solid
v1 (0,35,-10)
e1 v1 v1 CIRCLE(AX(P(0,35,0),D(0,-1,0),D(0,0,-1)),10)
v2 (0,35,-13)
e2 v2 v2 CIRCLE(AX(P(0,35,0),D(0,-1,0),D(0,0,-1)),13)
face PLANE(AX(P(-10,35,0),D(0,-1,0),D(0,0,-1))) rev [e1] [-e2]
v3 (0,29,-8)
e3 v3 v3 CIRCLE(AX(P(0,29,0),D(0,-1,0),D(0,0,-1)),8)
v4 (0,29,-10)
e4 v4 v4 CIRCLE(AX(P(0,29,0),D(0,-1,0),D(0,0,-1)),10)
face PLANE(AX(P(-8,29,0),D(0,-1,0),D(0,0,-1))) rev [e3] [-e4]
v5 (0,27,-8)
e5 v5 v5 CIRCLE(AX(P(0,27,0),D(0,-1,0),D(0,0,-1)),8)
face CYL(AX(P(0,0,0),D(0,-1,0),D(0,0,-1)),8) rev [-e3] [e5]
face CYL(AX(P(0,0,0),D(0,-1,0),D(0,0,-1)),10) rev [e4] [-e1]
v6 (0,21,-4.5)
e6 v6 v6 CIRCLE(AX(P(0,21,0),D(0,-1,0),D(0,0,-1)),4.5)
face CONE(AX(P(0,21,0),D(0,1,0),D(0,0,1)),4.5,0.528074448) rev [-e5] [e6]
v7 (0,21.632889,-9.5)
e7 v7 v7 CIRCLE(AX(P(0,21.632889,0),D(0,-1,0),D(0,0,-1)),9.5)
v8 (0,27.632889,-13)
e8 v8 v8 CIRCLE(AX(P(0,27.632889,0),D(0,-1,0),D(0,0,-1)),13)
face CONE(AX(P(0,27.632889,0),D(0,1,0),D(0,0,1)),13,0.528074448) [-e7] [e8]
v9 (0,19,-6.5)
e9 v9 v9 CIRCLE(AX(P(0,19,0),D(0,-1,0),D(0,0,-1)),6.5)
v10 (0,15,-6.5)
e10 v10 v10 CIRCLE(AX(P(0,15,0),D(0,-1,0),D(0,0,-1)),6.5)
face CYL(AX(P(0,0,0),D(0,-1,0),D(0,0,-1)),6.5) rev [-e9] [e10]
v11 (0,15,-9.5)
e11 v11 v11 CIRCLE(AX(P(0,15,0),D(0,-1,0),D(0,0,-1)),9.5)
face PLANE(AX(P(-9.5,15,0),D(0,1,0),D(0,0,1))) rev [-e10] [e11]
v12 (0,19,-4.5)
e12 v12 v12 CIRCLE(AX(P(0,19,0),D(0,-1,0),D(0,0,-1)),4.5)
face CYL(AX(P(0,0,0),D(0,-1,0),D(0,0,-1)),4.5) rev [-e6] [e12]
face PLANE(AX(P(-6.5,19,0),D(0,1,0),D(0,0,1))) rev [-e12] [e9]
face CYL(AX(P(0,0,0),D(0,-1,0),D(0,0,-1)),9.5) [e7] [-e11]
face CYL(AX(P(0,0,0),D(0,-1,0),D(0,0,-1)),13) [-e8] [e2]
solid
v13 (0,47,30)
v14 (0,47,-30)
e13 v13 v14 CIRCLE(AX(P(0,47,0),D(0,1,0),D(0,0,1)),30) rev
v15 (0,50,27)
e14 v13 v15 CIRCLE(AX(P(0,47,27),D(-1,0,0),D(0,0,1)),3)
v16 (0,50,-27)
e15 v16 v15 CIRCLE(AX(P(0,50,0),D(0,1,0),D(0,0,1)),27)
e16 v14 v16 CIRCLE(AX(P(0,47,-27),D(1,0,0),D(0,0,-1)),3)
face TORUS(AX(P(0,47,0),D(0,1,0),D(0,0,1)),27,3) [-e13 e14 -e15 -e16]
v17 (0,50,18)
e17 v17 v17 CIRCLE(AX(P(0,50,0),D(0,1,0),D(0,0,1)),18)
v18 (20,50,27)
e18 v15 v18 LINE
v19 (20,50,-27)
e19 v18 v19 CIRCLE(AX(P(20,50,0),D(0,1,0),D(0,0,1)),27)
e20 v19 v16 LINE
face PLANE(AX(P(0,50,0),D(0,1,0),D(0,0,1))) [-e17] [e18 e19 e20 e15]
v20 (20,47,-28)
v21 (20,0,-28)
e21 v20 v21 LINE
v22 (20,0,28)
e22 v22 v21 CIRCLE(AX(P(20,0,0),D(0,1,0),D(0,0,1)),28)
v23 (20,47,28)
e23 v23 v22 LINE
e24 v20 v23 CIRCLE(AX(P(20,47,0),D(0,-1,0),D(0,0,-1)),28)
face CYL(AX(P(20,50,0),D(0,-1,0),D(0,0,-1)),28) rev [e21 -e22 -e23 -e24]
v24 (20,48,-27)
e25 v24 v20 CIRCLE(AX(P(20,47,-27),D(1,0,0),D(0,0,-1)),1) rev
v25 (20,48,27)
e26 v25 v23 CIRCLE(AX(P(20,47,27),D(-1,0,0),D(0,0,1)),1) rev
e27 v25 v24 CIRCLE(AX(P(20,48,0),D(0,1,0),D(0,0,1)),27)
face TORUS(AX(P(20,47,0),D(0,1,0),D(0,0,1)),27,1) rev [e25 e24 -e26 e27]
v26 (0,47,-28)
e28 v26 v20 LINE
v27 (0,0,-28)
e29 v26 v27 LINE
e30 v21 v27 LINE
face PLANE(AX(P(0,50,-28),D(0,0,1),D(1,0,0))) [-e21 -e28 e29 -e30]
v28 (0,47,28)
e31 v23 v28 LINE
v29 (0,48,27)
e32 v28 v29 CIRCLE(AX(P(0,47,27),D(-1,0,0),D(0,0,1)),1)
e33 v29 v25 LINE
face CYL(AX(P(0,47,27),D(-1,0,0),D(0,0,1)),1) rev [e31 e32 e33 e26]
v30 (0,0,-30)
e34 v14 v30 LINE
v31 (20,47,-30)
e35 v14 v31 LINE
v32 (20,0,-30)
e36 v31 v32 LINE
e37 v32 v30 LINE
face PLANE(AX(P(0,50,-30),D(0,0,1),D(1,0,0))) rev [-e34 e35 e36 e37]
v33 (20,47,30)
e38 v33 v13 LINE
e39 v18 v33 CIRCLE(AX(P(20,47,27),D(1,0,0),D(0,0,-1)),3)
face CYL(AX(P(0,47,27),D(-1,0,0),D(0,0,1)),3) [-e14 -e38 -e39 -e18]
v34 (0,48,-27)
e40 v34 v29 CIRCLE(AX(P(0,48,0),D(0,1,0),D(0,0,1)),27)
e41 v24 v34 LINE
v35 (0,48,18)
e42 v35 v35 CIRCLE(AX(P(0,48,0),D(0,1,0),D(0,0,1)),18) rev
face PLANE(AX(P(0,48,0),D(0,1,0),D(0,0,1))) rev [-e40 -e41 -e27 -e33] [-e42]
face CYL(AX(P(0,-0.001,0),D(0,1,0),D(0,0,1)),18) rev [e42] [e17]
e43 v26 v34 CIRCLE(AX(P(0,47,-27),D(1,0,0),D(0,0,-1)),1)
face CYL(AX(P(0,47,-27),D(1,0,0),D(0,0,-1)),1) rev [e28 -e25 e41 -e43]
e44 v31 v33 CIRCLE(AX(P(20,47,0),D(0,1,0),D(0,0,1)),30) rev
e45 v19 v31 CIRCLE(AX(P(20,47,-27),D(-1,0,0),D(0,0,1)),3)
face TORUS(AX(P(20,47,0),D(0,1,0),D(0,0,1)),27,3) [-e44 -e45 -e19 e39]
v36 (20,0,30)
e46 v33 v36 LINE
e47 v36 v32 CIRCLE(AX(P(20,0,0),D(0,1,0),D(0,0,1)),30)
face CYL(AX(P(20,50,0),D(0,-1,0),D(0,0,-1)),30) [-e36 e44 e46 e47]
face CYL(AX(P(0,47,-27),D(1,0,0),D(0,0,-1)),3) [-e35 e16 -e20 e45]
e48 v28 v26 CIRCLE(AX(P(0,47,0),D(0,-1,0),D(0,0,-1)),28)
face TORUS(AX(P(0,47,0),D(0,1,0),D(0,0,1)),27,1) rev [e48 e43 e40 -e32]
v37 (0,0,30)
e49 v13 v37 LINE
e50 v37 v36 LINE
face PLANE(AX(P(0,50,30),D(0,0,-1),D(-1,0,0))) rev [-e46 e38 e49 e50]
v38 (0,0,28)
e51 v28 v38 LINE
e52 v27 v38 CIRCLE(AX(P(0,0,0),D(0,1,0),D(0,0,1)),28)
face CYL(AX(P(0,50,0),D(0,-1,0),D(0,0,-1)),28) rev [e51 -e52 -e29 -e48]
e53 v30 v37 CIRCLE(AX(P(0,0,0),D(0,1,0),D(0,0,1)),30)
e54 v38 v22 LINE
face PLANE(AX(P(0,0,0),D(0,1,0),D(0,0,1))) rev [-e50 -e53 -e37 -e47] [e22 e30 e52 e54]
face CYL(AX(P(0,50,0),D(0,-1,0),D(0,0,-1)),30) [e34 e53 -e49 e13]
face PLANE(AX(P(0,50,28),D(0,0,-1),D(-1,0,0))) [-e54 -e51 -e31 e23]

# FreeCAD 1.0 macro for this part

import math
import FreeCAD as App
import Part
import Sketcher
Q = App.Units.Quantity


def edges_at(feature, points):
    """Names of the edges that pass closest to the given points."""
    edges = feature.Shape.Edges
    near = lambda p: min(range(len(edges)), key=lambda i: edges[i].distToShape(Part.Vertex(*p))[0])
    return sorted({f"Edge{near(p) + 1}" for p in points})


def faces_at(feature, points):
    """Names of the faces that lie closest to the given points."""
    faces = feature.Shape.Faces
    near = lambda p: min(range(len(faces)), key=lambda i: faces[i].distToShape(Part.Vertex(*p))[0])
    return sorted({f"Face{near(p) + 1}" for p in points})

doc = App.newDocument("Part")
body = doc.addObject("PartDesign::Body", "Body")

sketch1 = body.newObject("Sketcher::SketchObject", "Sketch")
sketch1.AttachmentSupport = (doc.getObject("XZ_Plane"), [""])
sketch1.MapMode = "FlatFace"
sketch1.addGeometry([
    Part.LineSegment(App.Vector(20, -30, 0), App.Vector(0, -30, 0)),
    Part.ArcOfCircle(Part.Circle(App.Vector(0, 0, 0), App.Vector(0, 0, 1), 30), math.radians(90), math.radians(270)),
    Part.LineSegment(App.Vector(0, 30, 0), App.Vector(20, 30, 0)),
    Part.ArcOfCircle(Part.Circle(App.Vector(20, 0, 0), App.Vector(0, 0, 1), 30), math.radians(-90), math.radians(90)),
], False)
sketch1.addConstraint([
    Sketcher.Constraint("Tangent", 0, 2, 1, 2),
    Sketcher.Constraint("Tangent", 1, 1, 2, 1),
    Sketcher.Constraint("Tangent", 2, 2, 3, 2),
    Sketcher.Constraint("Tangent", 3, 1, 0, 1),
    Sketcher.Constraint("Horizontal", 0),
    Sketcher.Constraint("Horizontal", 2),
    Sketcher.Constraint("Coincident", 1, 3, -1, 1),
    Sketcher.Constraint("Radius", 1, Q("30 mm")),
    Sketcher.Constraint("DistanceX", 0, 2, 0, 1, Q("20 mm")),
])
pad1 = body.newObject("PartDesign::Pad", "Pad")
pad1.Profile = sketch1
pad1.Length = 50
pad1.Reversed = True
doc.recompute()

fillet = body.newObject("PartDesign::Fillet", "Fillet")
fillet.Base = (pad1, edges_at(pad1, [
    (50, 50, 0),
    (10, 50, -30),
    (-30, 50, 0),
    (10, 50, 30),
]))
fillet.Radius = 3
doc.recompute()

thickness = body.newObject("PartDesign::Thickness", "Thickness")
thickness.Base = (fillet, faces_at(fillet, [(10, 0, 0)]))
thickness.Value = 2
thickness.Reversed = True
thickness.Join = "Intersection"

sketch2 = body.newObject("Sketcher::SketchObject", "Sketch001")
sketch2.AttachmentSupport = (doc.getObject("XZ_Plane"), [""])
sketch2.MapMode = "FlatFace"
sketch2.AttachmentOffset = App.Placement(App.Vector(0, 0, -50), App.Rotation())
sketch2.addGeometry(Part.Circle(App.Vector(0, 0, 0), App.Vector(0, 0, 1), 18), False)
sketch2.addConstraint([
    Sketcher.Constraint("Coincident", 0, 3, -1, 1),
    Sketcher.Constraint("Diameter", 0, Q("36 mm")),
])
pocket1 = body.newObject("PartDesign::Pocket", "Pocket")
pocket1.Profile = sketch2
pocket1.Type = "UpToFirst"
pocket1.Reversed = True
body2 = doc.addObject("PartDesign::Body", "Body001")

sketch3 = body2.newObject("Sketcher::SketchObject", "Sketch002")
sketch3.AttachmentSupport = (doc.getObject("XY_Plane001"), [""])
sketch3.MapMode = "FlatFace"
sketch3.addGeometry([
    Part.LineSegment(App.Vector(-10, 35, 0), App.Vector(-13, 35, 0)),
    Part.LineSegment(App.Vector(-13, 35, 0), App.Vector(-13, 27.6, 0)),
    Part.LineSegment(App.Vector(-13, 27.6, 0), App.Vector(-9.5, 21.6, 0)),
    Part.LineSegment(App.Vector(-9.5, 21.6, 0), App.Vector(-9.5, 15, 0)),
    Part.LineSegment(App.Vector(-9.5, 15, 0), App.Vector(-6.5, 15, 0)),
    Part.LineSegment(App.Vector(-6.5, 15, 0), App.Vector(-6.5, 19, 0)),
    Part.LineSegment(App.Vector(-6.5, 19, 0), App.Vector(-4.5, 19, 0)),
    Part.LineSegment(App.Vector(-4.5, 19, 0), App.Vector(-4.5, 21, 0)),
    Part.LineSegment(App.Vector(-4.5, 21, 0), App.Vector(-8, 27, 0)),
    Part.LineSegment(App.Vector(-8, 27, 0), App.Vector(-8, 29, 0)),
    Part.LineSegment(App.Vector(-8, 29, 0), App.Vector(-10, 29, 0)),
    Part.LineSegment(App.Vector(-10, 29, 0), App.Vector(-10, 35, 0)),
], False)
sketch3.addConstraint([
    Sketcher.Constraint("Coincident", 0, 2, 1, 1),
    Sketcher.Constraint("Coincident", 1, 2, 2, 1),
    Sketcher.Constraint("Coincident", 2, 2, 3, 1),
    Sketcher.Constraint("Coincident", 3, 2, 4, 1),
    Sketcher.Constraint("Coincident", 4, 2, 5, 1),
    Sketcher.Constraint("Coincident", 5, 2, 6, 1),
    Sketcher.Constraint("Coincident", 6, 2, 7, 1),
    Sketcher.Constraint("Coincident", 7, 2, 8, 1),
    Sketcher.Constraint("Coincident", 8, 2, 9, 1),
    Sketcher.Constraint("Coincident", 9, 2, 10, 1),
    Sketcher.Constraint("Coincident", 10, 2, 11, 1),
    Sketcher.Constraint("Coincident", 11, 2, 0, 1),
    Sketcher.Constraint("Horizontal", 0),
    Sketcher.Constraint("Vertical", 1),
    Sketcher.Constraint("Vertical", 3),
    Sketcher.Constraint("Horizontal", 4),
    Sketcher.Constraint("Vertical", 5),
    Sketcher.Constraint("Horizontal", 6),
    Sketcher.Constraint("Vertical", 7),
    Sketcher.Constraint("Vertical", 9),
    Sketcher.Constraint("Horizontal", 10),
    Sketcher.Constraint("Vertical", 11),
    Sketcher.Constraint("Parallel", 2, 8),
    Sketcher.Constraint("Equal", 0, 4),
    Sketcher.Constraint("Equal", 6, 10),
    Sketcher.Constraint("Equal", 10, 7),
    Sketcher.Constraint("Equal", 7, 9),
    Sketcher.Constraint("DistanceX", 0, 2, 0, 1, Q("3 mm")),
    Sketcher.Constraint("DistanceX", 6, 1, 6, 2, Q("2 mm")),
    Sketcher.Constraint("DistanceY", 5, 1, 5, 2, Q("4 mm")),
    Sketcher.Constraint("DistanceY", 11, 1, 11, 2, Q("6 mm")),
    Sketcher.Constraint("DistanceX", 0, 2, -1, 1, Q("13 mm")),
    Sketcher.Constraint("DistanceY", -1, 1, 0, 2, Q("35 mm")),
    Sketcher.Constraint("DistanceY", -1, 1, 3, 2, Q("15 mm")),
    Sketcher.Constraint("DistanceX", 2, 2, -1, 1, Q("9.5 mm")),
    Sketcher.Constraint("DistanceY", 1, 2, 1, 1, Q("7.367111 mm")),
])
revolution = body2.newObject("PartDesign::Revolution", "Revolution")
revolution.Profile = sketch3
revolution.ReferenceAxis = (sketch3, ["V_Axis"])
revolution.Angle = 360

doc.recompute()
